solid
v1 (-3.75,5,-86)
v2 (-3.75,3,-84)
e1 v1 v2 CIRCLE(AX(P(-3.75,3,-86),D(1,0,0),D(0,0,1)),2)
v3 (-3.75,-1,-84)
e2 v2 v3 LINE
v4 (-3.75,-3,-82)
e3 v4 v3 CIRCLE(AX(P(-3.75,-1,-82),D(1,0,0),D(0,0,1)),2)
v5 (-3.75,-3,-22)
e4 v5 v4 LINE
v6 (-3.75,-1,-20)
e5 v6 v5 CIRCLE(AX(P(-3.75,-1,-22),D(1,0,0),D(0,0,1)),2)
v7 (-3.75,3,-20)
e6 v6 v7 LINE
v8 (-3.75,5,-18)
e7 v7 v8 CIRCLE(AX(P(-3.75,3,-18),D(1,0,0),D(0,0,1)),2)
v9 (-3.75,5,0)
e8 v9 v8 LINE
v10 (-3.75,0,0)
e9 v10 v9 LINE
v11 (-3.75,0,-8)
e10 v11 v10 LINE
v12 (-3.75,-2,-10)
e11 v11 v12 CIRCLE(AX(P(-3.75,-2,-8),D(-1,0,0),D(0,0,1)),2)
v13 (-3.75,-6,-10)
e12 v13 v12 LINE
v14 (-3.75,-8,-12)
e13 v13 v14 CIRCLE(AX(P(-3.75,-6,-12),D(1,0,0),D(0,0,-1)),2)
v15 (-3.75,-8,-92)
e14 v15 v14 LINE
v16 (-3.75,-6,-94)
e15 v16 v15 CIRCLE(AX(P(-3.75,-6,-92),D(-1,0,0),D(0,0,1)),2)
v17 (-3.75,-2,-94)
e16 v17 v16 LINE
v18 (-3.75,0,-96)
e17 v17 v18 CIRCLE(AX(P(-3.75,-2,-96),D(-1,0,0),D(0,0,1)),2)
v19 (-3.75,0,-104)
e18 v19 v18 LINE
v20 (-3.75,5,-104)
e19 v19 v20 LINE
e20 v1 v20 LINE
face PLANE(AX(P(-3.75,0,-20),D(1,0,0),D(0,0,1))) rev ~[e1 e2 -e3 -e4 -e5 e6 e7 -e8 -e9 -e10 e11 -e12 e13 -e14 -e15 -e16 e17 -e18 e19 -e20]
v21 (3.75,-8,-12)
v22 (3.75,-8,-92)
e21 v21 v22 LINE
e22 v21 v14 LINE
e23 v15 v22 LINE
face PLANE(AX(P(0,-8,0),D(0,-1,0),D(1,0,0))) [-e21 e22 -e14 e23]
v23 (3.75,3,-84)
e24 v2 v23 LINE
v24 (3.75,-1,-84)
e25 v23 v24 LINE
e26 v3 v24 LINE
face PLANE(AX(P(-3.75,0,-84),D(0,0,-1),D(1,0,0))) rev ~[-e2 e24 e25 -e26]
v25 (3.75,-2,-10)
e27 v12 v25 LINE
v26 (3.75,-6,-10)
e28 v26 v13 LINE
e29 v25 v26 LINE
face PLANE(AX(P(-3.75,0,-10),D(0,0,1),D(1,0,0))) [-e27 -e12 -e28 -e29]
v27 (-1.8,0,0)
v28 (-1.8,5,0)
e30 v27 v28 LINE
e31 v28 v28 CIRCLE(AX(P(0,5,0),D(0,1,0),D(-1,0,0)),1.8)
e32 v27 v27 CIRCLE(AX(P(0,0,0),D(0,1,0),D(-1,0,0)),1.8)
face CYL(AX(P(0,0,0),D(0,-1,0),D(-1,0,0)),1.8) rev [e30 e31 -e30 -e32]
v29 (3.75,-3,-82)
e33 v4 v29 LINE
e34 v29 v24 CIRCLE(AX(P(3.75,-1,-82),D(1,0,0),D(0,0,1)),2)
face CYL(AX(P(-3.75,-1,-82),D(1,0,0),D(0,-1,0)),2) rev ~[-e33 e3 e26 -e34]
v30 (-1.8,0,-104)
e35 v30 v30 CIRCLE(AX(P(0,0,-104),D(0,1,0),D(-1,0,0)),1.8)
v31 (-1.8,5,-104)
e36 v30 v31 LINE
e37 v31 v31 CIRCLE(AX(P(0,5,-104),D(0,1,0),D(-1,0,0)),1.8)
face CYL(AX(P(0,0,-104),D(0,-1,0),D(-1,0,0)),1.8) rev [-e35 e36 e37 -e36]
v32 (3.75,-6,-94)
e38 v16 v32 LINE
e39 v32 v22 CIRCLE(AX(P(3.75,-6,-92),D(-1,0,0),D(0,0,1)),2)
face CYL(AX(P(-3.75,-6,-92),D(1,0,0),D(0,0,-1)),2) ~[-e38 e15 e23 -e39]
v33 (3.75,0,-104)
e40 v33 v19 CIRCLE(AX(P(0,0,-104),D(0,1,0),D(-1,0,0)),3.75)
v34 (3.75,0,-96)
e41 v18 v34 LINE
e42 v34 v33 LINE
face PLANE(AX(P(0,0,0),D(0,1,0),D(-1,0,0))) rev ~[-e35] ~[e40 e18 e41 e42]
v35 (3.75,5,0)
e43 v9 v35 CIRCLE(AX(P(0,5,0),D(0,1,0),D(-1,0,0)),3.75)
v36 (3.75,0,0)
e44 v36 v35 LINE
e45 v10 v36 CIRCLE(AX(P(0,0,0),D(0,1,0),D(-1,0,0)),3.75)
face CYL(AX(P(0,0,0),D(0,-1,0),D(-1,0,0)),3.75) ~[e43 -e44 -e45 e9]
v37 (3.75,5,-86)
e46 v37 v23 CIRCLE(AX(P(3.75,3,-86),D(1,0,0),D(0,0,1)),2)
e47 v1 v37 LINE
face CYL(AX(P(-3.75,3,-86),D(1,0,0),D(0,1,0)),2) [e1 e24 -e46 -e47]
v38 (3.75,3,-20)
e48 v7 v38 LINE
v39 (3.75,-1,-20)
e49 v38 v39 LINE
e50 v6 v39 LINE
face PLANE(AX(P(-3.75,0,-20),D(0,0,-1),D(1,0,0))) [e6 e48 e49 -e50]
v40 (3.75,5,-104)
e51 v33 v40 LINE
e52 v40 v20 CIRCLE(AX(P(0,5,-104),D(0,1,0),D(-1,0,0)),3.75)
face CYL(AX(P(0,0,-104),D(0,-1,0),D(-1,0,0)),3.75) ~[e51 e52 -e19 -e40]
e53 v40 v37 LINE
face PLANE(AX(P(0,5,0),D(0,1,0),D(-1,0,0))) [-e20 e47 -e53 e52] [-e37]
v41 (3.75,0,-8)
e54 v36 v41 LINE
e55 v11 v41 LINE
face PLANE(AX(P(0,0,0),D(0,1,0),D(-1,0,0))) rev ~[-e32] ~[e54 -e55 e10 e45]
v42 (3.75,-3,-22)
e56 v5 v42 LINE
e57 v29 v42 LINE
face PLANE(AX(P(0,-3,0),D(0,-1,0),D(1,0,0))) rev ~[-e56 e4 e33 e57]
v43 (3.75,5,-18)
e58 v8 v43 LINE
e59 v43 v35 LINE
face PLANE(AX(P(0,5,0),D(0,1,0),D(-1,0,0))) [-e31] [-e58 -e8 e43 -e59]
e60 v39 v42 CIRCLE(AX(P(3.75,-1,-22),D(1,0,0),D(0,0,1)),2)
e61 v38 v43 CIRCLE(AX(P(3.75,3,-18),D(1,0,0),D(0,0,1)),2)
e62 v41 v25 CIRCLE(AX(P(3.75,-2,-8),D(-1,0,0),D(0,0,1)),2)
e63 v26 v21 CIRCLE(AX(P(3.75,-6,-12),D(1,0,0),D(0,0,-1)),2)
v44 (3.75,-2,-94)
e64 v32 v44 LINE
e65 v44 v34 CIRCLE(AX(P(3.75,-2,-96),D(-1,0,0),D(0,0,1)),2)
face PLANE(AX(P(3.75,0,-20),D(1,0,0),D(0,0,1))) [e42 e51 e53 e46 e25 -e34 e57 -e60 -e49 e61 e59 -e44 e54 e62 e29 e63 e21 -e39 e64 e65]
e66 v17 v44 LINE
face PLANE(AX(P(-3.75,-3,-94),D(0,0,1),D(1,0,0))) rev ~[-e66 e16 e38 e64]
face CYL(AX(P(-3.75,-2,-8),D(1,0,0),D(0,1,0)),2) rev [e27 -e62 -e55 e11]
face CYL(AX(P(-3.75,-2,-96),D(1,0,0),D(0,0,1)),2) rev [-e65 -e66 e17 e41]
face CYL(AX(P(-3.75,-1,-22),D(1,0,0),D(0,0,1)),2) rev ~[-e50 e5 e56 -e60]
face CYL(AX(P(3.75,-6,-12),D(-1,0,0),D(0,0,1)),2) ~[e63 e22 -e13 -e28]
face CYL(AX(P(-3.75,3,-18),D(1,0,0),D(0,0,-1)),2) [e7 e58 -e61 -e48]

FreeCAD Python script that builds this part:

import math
import FreeCAD as App
import Part
import Sketcher


def edges_at(feature, points):
    """Names of the edges that pass closest to the given points."""
    edges = feature.Shape.Edges
    near = lambda p: min(range(len(edges)), key=lambda i: edges[i].distToShape(Part.Vertex(*p))[0])
    return sorted({f"Edge{near(p) + 1}" for p in points})


def add_polygon(sketch, points):
    """Adds a closed chain of lines whose ends are joined by coincident constraints."""
    first, n = sketch.GeometryCount, len(points)
    for a, b in zip(points, points[1:] + points[:1]):
        sketch.addGeometry(Part.LineSegment(App.Vector(*a, 0), App.Vector(*b, 0)), False)
    for i in range(n):
        sketch.addConstraint(Sketcher.Constraint("Coincident", first + i, 2, first + (i + 1) % n, 1))

doc = App.newDocument("Part")
body = doc.addObject("PartDesign::Body", "Body")
body.AllowCompound = True

sketch1 = doc.addObject("Sketcher::SketchObject", "Sketch")
body.addObject(sketch1)
sketch1.AttachmentSupport = (doc.XZ_Plane, [""])
sketch1.MapMode = "FlatFace"
sketch1.addGeometry([
    Part.ArcOfCircle(Part.Circle(App.Vector(0, -104, 0), App.Vector(0, 0, 1), 3.8), math.radians(180), math.radians(360)),
    Part.LineSegment(App.Vector(-3.8, -104, 0), App.Vector(-3.8, -84, 0)),
    Part.LineSegment(App.Vector(-3.8, -84, 0), App.Vector(3.8, -84, 0)),
    Part.LineSegment(App.Vector(3.8, -84, 0), App.Vector(3.8, -104, 0)),
    Part.Circle(App.Vector(0, -104, 0), App.Vector(0, 0, 1), 1.8),
    Part.LineSegment(App.Vector(3.8, -20, 0), App.Vector(-3.8, -20, 0)),
    Part.LineSegment(App.Vector(-3.8, -20, 0), App.Vector(-3.8, 0, 0)),
    Part.ArcOfCircle(Part.Circle(App.Vector(0, 0, 0), App.Vector(0, 0, 1), 3.8), math.radians(0), math.radians(180)),
    Part.LineSegment(App.Vector(3.8, 0, 0), App.Vector(3.8, -20, 0)),
    Part.Circle(App.Vector(0, 0, 0), App.Vector(0, 0, 1), 1.8),
], False)
sketch1.addConstraint([
    Sketcher.Constraint("Tangent", 0, 1, 1, 1),
    Sketcher.Constraint("Coincident", 1, 2, 2, 1),
    Sketcher.Constraint("Coincident", 2, 2, 3, 1),
    Sketcher.Constraint("Tangent", 3, 2, 0, 2),
    Sketcher.Constraint("Coincident", 5, 2, 6, 1),
    Sketcher.Constraint("Tangent", 6, 2, 7, 2),
    Sketcher.Constraint("Tangent", 7, 1, 8, 1),
    Sketcher.Constraint("Coincident", 8, 2, 5, 1),
    Sketcher.Constraint("Vertical", 1),
    Sketcher.Constraint("Horizontal", 2),
    Sketcher.Constraint("Vertical", 3),
    Sketcher.Constraint("Horizontal", 5),
    Sketcher.Constraint("Vertical", 6),
    Sketcher.Constraint("Vertical", 8),
    Sketcher.Constraint("Coincident", 7, 3, -1, 1),
    Sketcher.Constraint("Coincident", 9, 3, -1, 1),
    Sketcher.Constraint("Coincident", 4, 3, 0, 3),
    Sketcher.Constraint("Equal", 0, 7),
    Sketcher.Constraint("Equal", 4, 9),
    Sketcher.Constraint("PointOnObject", 0, 3, -2),
    Sketcher.Constraint("Equal", 3, 6),
    Sketcher.Constraint("Diameter", 4, 3.6),
    Sketcher.Constraint("DistanceY", 1, 1, 1, 2, 20.0),
    Sketcher.Constraint("Radius", 0, 3.75),
    Sketcher.Constraint("DistanceY", 0, 3, -1, 1, 104.0),
])
pad1 = doc.addObject("PartDesign::Pad", "Pad")
body.addObject(pad1)
pad1.Profile = sketch1
pad1.Length = 5
pad1.Reversed = True
doc.recompute()

fillet = doc.addObject("PartDesign::Fillet", "Fillet")
body.addObject(fillet)
fillet.Base = (pad1, edges_at(pad1, [(0, 5, -20), (0, 5, -84)]))
fillet.Radius = 2

sketch2 = doc.addObject("Sketcher::SketchObject", "Sketch001")
body.addObject(sketch2)
sketch2.AttachmentSupport = (doc.XZ_Plane, [""])
sketch2.MapMode = "FlatFace"
add_polygon(sketch2, [(4, -94), (-4, -94), (-4, -84), (4, -84)])
add_polygon(sketch2, [(4, -20), (-4, -20), (-4, -10), (4, -10)])
sketch2.addConstraint([
    Sketcher.Constraint("Horizontal", 0),
    Sketcher.Constraint("Vertical", 1),
    Sketcher.Constraint("Horizontal", 2),
    Sketcher.Constraint("Vertical", 3),
    Sketcher.Constraint("Horizontal", 4),
    Sketcher.Constraint("Vertical", 5),
    Sketcher.Constraint("Horizontal", 6),
    Sketcher.Constraint("Vertical", 7),
    Sketcher.Constraint("Vertical", 1, 2, 4, 2),
    Sketcher.Constraint("Vertical", 3, 2, 6, 2),
    Sketcher.Constraint("Equal", 3, 5),
    Sketcher.Constraint("DistanceY", 1, 1, 1, 2, 10.0),
    Sketcher.Constraint("DistanceX", 0, 2, 0, 1, 7.5),
    Sketcher.Constraint("DistanceY", 4, 2, -1, 1, 20.0),
    Sketcher.Constraint("DistanceY", 0, 2, -1, 1, 94.0),
    Sketcher.Constraint("DistanceX", 0, 2, -1, 1, 3.75),
])
pad2 = doc.addObject("PartDesign::Pad", "Pad001")
body.addObject(pad2)
pad2.Profile = sketch2
pad2.Length = 3

sketch3 = doc.addObject("Sketcher::SketchObject", "Sketch002")
body.addObject(sketch3)
sketch3.AttachmentSupport = (doc.XZ_Plane, [""])
sketch3.MapMode = "FlatFace"
sketch3.AttachmentOffset = App.Placement(App.Vector(0, 0, 3), App.Rotation())
add_polygon(sketch3, [(-4, -94), (4, -94), (4, -10), (-4, -10)])
sketch3.addConstraint([
    Sketcher.Constraint("Horizontal", 0),
    Sketcher.Constraint("Vertical", 1),
    Sketcher.Constraint("Horizontal", 2),
    Sketcher.Constraint("Vertical", 3),
    Sketcher.Constraint("DistanceY", 1, 1, 1, 2, 84.0),
    Sketcher.Constraint("DistanceX", 0, 1, 0, 2, 7.5),
    Sketcher.Constraint("DistanceY", 0, 2, -1, 1, 94.0),
    Sketcher.Constraint("DistanceX", -1, 1, 0, 2, 3.75),
])
pad3 = doc.addObject("PartDesign::Pad", "Pad002")
body.addObject(pad3)
pad3.Profile = sketch3
pad3.Length = 5
doc.recompute()

fillet2 = doc.addObject("PartDesign::Fillet", "Fillet001")
body.addObject(fillet2)
fillet2.Base = (pad3, edges_at(pad3, [
    (0, -8, -94),
    (0, -8, -10),
    (0, 0, -10),
    (0, -3, -20),
    (0, -3, -84),
    (0, 0, -94),
]))
fillet2.Radius = 2

doc.recompute()
